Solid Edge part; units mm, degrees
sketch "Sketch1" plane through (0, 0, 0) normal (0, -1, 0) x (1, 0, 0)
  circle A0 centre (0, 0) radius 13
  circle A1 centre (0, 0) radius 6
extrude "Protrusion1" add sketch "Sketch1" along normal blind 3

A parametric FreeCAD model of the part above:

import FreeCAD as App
import Part
import Sketcher

V = App.Vector
Q = App.Units.Quantity

doc = App.newDocument("Part")
params = doc.addObject("Spreadsheet::Sheet", "Params")
for row, (alias, value) in enumerate([
    ("sketch1_diameter", "26 mm"),
    ("sketch1_diameter2", "12 mm"),
    ("pad1_length", "3 mm"),
], start=1):
    params.set(f"A{row}", alias)
    params.set(f"B{row}", "=" + value)
    params.setAlias(f"B{row}", alias)

body = doc.addObject("PartDesign::Body", "Body")

# Sketch on XZ plane
sketch1 = doc.addObject("Sketcher::SketchObject", "Sketch")
body.addObject(sketch1)
sketch1.AttachmentSupport = (doc.XZ_Plane, [""])
sketch1.MapMode = "FlatFace"
sketch1.addGeometry([
    Part.Circle(V(0, 0, 0), V(0, 0, 1), 13),
    Part.Circle(V(0, 0, 0), V(0, 0, 1), 6),
], False)
sketch1.addConstraint([
    Sketcher.Constraint("Coincident", 0, 3, -1, 1),
    Sketcher.Constraint("Coincident", 1, 3, -1, 1),
    Sketcher.Constraint("Diameter", 0, Q("26 mm")),
    Sketcher.Constraint("Diameter", 1, Q("12 mm")),
])
sketch1.setExpression("Constraints[2]", "Params.sketch1_diameter")
sketch1.setExpression("Constraints[3]", "Params.sketch1_diameter2")
pad1 = doc.addObject("PartDesign::Pad", "Pad")
body.addObject(pad1)
pad1.Profile = sketch1
pad1.setExpression("Length", "Params.pad1_length")

doc.recompute()
